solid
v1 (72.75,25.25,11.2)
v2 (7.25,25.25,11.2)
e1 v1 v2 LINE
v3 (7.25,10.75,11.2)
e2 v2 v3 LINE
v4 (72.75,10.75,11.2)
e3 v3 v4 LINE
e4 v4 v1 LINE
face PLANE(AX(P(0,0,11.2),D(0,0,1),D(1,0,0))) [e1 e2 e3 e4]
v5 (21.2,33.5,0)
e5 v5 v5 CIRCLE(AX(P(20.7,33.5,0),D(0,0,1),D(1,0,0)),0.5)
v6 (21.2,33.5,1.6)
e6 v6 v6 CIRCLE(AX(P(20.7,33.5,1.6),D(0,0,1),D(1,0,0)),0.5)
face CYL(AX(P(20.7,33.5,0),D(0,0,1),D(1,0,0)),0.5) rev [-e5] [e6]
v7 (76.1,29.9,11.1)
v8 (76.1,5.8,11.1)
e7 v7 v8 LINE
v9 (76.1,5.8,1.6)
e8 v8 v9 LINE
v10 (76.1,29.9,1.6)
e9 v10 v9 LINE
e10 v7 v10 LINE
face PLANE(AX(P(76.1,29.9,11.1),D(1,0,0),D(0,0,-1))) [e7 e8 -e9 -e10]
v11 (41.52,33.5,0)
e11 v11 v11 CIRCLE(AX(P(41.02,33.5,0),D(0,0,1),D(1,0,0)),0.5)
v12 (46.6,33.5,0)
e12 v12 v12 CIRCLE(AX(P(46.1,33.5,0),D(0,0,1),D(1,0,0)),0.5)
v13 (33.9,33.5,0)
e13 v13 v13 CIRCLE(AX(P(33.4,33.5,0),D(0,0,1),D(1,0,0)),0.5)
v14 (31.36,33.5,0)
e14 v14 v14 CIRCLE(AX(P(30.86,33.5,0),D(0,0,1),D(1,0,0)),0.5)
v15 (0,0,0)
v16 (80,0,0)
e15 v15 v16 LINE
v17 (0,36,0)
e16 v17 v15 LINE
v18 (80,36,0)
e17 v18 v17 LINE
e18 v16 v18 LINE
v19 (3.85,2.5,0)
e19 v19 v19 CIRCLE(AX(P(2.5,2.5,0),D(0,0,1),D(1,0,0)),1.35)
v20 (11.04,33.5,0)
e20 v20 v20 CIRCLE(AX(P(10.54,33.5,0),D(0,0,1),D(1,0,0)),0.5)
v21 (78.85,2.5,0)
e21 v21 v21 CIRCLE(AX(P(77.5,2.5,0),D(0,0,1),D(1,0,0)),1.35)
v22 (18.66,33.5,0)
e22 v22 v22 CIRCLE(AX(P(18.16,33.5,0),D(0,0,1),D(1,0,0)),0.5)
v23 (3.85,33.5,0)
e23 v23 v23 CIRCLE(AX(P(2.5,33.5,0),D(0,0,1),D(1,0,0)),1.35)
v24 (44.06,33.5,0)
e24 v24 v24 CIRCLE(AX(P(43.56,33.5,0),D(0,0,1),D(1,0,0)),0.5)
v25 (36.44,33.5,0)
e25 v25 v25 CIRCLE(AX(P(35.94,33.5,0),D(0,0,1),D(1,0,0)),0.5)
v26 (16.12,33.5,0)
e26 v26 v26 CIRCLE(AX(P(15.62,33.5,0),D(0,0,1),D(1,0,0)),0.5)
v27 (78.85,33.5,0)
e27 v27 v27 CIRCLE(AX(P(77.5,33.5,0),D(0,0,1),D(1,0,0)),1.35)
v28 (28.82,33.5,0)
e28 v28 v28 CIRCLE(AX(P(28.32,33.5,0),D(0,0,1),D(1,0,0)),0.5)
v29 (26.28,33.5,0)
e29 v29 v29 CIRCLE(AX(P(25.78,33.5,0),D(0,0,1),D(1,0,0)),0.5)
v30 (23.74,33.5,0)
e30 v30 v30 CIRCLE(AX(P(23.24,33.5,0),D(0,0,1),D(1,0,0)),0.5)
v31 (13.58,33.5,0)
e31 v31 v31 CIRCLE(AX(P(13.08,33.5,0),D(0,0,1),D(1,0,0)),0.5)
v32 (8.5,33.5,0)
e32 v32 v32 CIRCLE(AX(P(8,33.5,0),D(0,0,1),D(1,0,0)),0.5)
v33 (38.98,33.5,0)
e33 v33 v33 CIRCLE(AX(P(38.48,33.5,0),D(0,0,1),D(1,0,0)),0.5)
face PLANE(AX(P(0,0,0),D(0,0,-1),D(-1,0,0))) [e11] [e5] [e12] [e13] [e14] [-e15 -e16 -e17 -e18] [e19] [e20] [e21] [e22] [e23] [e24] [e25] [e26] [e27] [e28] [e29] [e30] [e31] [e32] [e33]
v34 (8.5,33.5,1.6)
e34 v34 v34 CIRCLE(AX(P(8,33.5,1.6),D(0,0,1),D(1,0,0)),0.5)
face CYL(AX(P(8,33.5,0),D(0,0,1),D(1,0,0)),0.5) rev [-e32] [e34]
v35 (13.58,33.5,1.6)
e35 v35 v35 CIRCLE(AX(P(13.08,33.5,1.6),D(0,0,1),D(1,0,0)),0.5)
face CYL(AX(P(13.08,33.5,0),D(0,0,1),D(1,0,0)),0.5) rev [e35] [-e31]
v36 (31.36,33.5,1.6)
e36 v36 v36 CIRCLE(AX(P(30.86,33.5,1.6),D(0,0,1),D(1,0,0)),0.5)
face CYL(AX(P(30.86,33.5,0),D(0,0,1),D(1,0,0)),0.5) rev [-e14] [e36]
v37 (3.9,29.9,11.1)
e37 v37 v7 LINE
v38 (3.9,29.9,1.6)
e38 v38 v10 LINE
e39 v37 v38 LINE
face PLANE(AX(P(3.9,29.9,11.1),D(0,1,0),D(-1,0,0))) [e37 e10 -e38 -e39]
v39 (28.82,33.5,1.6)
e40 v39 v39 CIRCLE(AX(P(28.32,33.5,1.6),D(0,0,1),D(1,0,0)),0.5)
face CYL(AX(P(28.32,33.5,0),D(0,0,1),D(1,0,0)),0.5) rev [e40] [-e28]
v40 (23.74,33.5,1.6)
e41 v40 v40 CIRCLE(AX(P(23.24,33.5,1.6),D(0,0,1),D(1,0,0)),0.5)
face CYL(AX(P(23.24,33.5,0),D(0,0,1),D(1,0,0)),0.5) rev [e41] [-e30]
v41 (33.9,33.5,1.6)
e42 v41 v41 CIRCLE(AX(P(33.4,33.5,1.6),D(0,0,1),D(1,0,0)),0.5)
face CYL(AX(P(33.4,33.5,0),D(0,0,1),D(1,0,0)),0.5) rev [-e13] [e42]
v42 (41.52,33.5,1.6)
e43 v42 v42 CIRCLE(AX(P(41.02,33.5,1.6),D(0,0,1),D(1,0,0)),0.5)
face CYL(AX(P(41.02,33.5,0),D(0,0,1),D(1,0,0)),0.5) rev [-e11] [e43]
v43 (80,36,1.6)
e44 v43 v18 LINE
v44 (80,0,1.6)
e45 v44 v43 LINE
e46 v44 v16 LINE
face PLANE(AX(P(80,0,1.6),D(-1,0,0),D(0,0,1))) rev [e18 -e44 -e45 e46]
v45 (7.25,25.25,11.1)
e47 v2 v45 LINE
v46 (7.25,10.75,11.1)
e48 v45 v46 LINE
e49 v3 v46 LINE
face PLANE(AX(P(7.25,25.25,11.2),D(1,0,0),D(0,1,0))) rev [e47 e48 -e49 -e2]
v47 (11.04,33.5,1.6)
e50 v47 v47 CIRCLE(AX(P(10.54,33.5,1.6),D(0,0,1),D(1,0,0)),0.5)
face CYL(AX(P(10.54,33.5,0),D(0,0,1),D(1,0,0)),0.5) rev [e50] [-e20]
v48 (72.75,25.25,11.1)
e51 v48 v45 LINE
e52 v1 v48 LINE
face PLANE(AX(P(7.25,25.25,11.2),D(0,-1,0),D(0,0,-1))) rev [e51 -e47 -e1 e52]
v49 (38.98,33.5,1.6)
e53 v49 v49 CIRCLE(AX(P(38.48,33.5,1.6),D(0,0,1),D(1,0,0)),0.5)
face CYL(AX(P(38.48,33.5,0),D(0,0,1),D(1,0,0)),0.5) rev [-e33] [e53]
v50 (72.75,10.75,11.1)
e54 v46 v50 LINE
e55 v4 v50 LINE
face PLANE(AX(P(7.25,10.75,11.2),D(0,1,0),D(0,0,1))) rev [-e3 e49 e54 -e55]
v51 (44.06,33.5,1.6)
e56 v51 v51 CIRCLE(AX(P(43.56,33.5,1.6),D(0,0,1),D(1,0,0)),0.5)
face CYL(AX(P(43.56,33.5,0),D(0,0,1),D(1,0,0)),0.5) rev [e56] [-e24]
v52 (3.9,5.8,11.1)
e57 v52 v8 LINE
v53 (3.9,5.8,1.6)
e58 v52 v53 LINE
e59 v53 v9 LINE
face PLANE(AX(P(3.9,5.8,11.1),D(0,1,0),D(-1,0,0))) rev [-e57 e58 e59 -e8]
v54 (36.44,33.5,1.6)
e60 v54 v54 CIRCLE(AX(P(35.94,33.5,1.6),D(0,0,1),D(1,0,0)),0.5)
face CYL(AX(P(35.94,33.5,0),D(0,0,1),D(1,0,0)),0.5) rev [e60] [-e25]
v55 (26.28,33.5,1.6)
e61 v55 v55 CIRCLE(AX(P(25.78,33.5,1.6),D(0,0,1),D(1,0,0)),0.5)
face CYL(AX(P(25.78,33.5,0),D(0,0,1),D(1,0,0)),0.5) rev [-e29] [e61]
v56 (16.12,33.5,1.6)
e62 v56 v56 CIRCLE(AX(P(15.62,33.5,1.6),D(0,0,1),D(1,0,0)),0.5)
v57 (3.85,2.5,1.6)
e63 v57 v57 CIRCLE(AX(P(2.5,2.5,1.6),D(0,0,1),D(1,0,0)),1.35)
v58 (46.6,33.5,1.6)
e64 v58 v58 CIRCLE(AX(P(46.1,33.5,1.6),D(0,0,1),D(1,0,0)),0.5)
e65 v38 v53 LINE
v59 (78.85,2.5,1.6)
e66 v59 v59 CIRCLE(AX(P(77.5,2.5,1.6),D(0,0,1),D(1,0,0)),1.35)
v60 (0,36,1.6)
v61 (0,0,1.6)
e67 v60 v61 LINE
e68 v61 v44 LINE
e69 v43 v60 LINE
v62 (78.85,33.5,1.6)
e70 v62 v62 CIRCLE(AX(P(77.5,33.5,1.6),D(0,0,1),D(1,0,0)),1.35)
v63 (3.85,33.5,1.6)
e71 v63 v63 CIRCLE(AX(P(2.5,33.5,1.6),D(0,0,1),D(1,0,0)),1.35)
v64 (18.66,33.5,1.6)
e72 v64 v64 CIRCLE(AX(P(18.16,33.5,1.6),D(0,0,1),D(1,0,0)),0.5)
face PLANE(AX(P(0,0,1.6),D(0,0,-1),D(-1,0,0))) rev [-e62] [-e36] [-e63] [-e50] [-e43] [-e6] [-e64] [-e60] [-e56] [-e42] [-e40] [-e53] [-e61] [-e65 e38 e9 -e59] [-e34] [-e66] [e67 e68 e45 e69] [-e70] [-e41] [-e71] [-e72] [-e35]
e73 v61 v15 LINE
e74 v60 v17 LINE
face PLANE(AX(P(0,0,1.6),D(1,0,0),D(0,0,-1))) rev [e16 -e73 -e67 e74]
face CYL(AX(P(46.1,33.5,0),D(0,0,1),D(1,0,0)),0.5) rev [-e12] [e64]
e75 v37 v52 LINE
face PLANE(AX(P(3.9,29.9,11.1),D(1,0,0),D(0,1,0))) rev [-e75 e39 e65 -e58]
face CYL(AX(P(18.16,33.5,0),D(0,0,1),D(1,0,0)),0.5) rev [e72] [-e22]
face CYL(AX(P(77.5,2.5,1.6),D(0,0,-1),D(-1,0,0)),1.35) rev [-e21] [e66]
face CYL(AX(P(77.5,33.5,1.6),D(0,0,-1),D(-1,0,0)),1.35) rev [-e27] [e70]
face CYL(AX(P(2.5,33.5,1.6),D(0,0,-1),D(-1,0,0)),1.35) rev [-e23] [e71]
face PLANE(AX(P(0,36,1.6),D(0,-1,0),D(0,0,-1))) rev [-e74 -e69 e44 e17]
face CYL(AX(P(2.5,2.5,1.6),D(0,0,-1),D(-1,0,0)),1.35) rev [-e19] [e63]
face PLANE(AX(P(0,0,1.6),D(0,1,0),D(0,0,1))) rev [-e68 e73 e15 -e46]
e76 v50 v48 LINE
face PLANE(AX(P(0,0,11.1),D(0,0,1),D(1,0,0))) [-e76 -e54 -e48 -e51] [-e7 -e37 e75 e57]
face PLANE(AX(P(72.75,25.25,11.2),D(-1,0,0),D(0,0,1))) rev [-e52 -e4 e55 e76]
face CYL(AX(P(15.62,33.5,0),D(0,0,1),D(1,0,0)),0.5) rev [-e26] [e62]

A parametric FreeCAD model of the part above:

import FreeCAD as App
import Part
import Sketcher

V = App.Vector


def add_polygon(sketch, points):
    """Adds a closed chain of lines whose ends are joined by coincident constraints."""
    first, n = sketch.GeometryCount, len(points)
    for a, b in zip(points, points[1:] + points[:1]):
        sketch.addGeometry(Part.LineSegment(App.Vector(*a, 0), App.Vector(*b, 0)), False)
    for i in range(n):
        sketch.addConstraint(Sketcher.Constraint("Coincident", first + i, 2, first + (i + 1) % n, 1))

doc = App.newDocument("Part")
body = doc.addObject("PartDesign::Body", "Body")

sketch1 = body.newObject("Sketcher::SketchObject", "Sketch")
sketch1.AttachmentSupport = (doc.getObject("XY_Plane"), [""])
sketch1.MapMode = "FlatFace"
add_polygon(sketch1, [(0, 36), (0, 0), (80, 0), (80, 36)])
sketch1.addGeometry(Part.Circle(V(2.5, 2.5, 0), V(0, 0, 1), 1.35), False)
sketch1.addGeometry(Part.Circle(V(77.5, 2.5, 0), V(0, 0, 1), 1.35), False)
sketch1.addGeometry(Part.Circle(V(2.5, 33.5, 0), V(0, 0, 1), 1.35), False)
sketch1.addGeometry(Part.Circle(V(77.5, 33.5, 0), V(0, 0, 1), 1.35), False)
sketch1.addConstraint([
    Sketcher.Constraint("Vertical", 0),
    Sketcher.Constraint("Horizontal", 1),
    Sketcher.Constraint("Vertical", 2),
    Sketcher.Constraint("Horizontal", 3),
    Sketcher.Constraint("Coincident", 0, 2, -1, 1),
    Sketcher.Constraint("Equal", 4, 5),
    Sketcher.Constraint("Equal", 5, 6),
    Sketcher.Constraint("Equal", 6, 7),
    Sketcher.Constraint("Horizontal", 4, 3, 5, 3),
    Sketcher.Constraint("Horizontal", 6, 3, 7, 3),
    Sketcher.Constraint("Vertical", 4, 3, 6, 3),
    Sketcher.Constraint("Vertical", 5, 3, 7, 3),
    Sketcher.Constraint("Diameter", 4, 2.7),
    Sketcher.Constraint("DistanceX", 1, 1, 1, 2, 80.0),
    Sketcher.Constraint("DistanceY", 0, 2, 0, 1, 36.0),
    Sketcher.Constraint("DistanceX", 4, 3, 5, 3, 75.0),
    Sketcher.Constraint("DistanceY", 4, 3, 6, 3, 31.0),
    Sketcher.Constraint("DistanceX", -1, 1, 4, 3, 2.5),
    Sketcher.Constraint("DistanceY", -1, 1, 4, 3, 2.5),
])
pad1 = body.newObject("PartDesign::Pad", "Pad")
pad1.Profile = sketch1
pad1.Length = 1.6

sketch2 = body.newObject("Sketcher::SketchObject", "Sketch001")
sketch2.AttachmentSupport = (doc.getObject("XY_Plane"), [""])
sketch2.MapMode = "FlatFace"
sketch2.AttachmentOffset = App.Placement(V(0, 0, 1.6), App.Rotation())
add_polygon(sketch2, [(7.25, 25.25), (7.25, 10.75), (72.75, 10.75), (72.75, 25.25)])
sketch2.addConstraint([
    Sketcher.Constraint("Vertical", 0),
    Sketcher.Constraint("Horizontal", 1),
    Sketcher.Constraint("Vertical", 2),
    Sketcher.Constraint("Horizontal", 3),
    Sketcher.Constraint("DistanceX", 1, 1, 1, 2, 65.5),
    Sketcher.Constraint("DistanceY", 0, 2, 0, 1, 14.5),
    Sketcher.Constraint("DistanceX", -1, 1, 0, 2, 7.25),
    Sketcher.Constraint("DistanceY", -1, 1, 0, 2, 10.75),
])
pad2 = body.newObject("PartDesign::Pad", "Pad001")
pad2.Profile = sketch2
pad2.Length = 9.6

sketch3 = body.newObject("Sketcher::SketchObject", "Sketch002")
sketch3.AttachmentSupport = (doc.getObject("XY_Plane"), [""])
sketch3.MapMode = "FlatFace"
sketch3.AttachmentOffset = App.Placement(V(0, 0, 1.6), App.Rotation())
add_polygon(sketch3, [(3.9, 29.9), (3.9, 5.8), (76.1, 5.8), (76.1, 29.9)])
sketch3.addConstraint([
    Sketcher.Constraint("Vertical", 0),
    Sketcher.Constraint("Horizontal", 1),
    Sketcher.Constraint("Vertical", 2),
    Sketcher.Constraint("Horizontal", 3),
    Sketcher.Constraint("DistanceX", 1, 1, 1, 2, 72.2),
    Sketcher.Constraint("DistanceY", 0, 2, 0, 1, 24.1),
    Sketcher.Constraint("DistanceX", -1, 1, 0, 2, 3.9),
    Sketcher.Constraint("DistanceY", -1, 1, 0, 2, 5.8),
])
pad3 = body.newObject("PartDesign::Pad", "Pad002")
pad3.Profile = sketch3
pad3.Length = 9.5

sketch4 = body.newObject("Sketcher::SketchObject", "Sketch003")
sketch4.AttachmentSupport = (doc.getObject("XY_Plane"), [""])
sketch4.MapMode = "FlatFace"
sketch4.AttachmentOffset = App.Placement(V(0, 0, 1.6), App.Rotation())
sketch4.addGeometry([
    Part.Circle(V(8, 33.5, 0), V(0, 0, 1), 0.5),
    Part.Circle(V(10.54, 33.5, 0), V(0, 0, 1), 0.5),
    Part.Circle(V(13.08, 33.5, 0), V(0, 0, 1), 0.5),
    Part.Circle(V(15.62, 33.5, 0), V(0, 0, 1), 0.5),
    Part.Circle(V(18.16, 33.5, 0), V(0, 0, 1), 0.5),
    Part.Circle(V(20.7, 33.5, 0), V(0, 0, 1), 0.5),
    Part.Circle(V(23.24, 33.5, 0), V(0, 0, 1), 0.5),
    Part.Circle(V(25.78, 33.5, 0), V(0, 0, 1), 0.5),
    Part.Circle(V(28.32, 33.5, 0), V(0, 0, 1), 0.5),
    Part.Circle(V(30.86, 33.5, 0), V(0, 0, 1), 0.5),
    Part.Circle(V(33.4, 33.5, 0), V(0, 0, 1), 0.5),
    Part.Circle(V(35.94, 33.5, 0), V(0, 0, 1), 0.5),
    Part.Circle(V(38.48, 33.5, 0), V(0, 0, 1), 0.5),
    Part.Circle(V(41.02, 33.5, 0), V(0, 0, 1), 0.5),
    Part.Circle(V(43.56, 33.5, 0), V(0, 0, 1), 0.5),
    Part.Circle(V(46.1, 33.5, 0), V(0, 0, 1), 0.5),
], False)
sketch4.addConstraint([
    Sketcher.Constraint("Equal", 0, 1),
    Sketcher.Constraint("Equal", 1, 2),
    Sketcher.Constraint("Equal", 2, 3),
    Sketcher.Constraint("Equal", 3, 4),
    Sketcher.Constraint("Equal", 4, 5),
    Sketcher.Constraint("Equal", 5, 6),
    Sketcher.Constraint("Equal", 6, 7),
    Sketcher.Constraint("Equal", 7, 8),
    Sketcher.Constraint("Equal", 8, 9),
    Sketcher.Constraint("Equal", 9, 10),
    Sketcher.Constraint("Equal", 10, 11),
    Sketcher.Constraint("Equal", 11, 12),
    Sketcher.Constraint("Equal", 12, 13),
    Sketcher.Constraint("Equal", 13, 14),
    Sketcher.Constraint("Equal", 14, 15),
    Sketcher.Constraint("Horizontal", 0, 3, 1, 3),
    Sketcher.Constraint("Horizontal", 1, 3, 2, 3),
    Sketcher.Constraint("Horizontal", 2, 3, 3, 3),
    Sketcher.Constraint("Horizontal", 3, 3, 4, 3),
    Sketcher.Constraint("Horizontal", 4, 3, 5, 3),
    Sketcher.Constraint("Horizontal", 5, 3, 6, 3),
    Sketcher.Constraint("Horizontal", 6, 3, 7, 3),
    Sketcher.Constraint("Horizontal", 7, 3, 8, 3),
    Sketcher.Constraint("Horizontal", 8, 3, 9, 3),
    Sketcher.Constraint("Horizontal", 9, 3, 10, 3),
    Sketcher.Constraint("Horizontal", 10, 3, 11, 3),
    Sketcher.Constraint("Horizontal", 11, 3, 12, 3),
    Sketcher.Constraint("Horizontal", 12, 3, 13, 3),
    Sketcher.Constraint("Horizontal", 13, 3, 14, 3),
    Sketcher.Constraint("Horizontal", 14, 3, 15, 3),
    Sketcher.Constraint("Diameter", 0, 1.0),
    Sketcher.Constraint("DistanceX", -1, 1, 0, 3, 8.0),
    Sketcher.Constraint("DistanceY", -1, 1, 0, 3, 33.5),
    Sketcher.Constraint("DistanceX", -1, 1, 5, 3, 20.7),
    Sketcher.Constraint("DistanceX", -1, 1, 10, 3, 33.4),
    Sketcher.Constraint("DistanceX", -1, 1, 15, 3, 46.1),
    Sketcher.Constraint("DistanceX", 1, 3, 6, 3, 12.7),
    Sketcher.Constraint("DistanceX", 2, 3, 7, 3, 12.7),
    Sketcher.Constraint("DistanceX", 3, 3, 8, 3, 12.7),
    Sketcher.Constraint("DistanceX", 4, 3, 9, 3, 12.7),
    Sketcher.Constraint("DistanceX", 6, 3, 11, 3, 12.7),
    Sketcher.Constraint("DistanceX", 7, 3, 12, 3, 12.7),
    Sketcher.Constraint("DistanceX", 8, 3, 13, 3, 12.7),
    Sketcher.Constraint("DistanceX", 9, 3, 14, 3, 12.7),
    Sketcher.Constraint("DistanceX", -1, 1, 1, 3, 10.54),
    Sketcher.Constraint("DistanceX", -1, 1, 2, 3, 13.08),
    Sketcher.Constraint("DistanceX", -1, 1, 3, 3, 15.62),
    Sketcher.Constraint("DistanceX", -1, 1, 4, 3, 18.16),
])
pocket1 = body.newObject("PartDesign::Pocket", "Pocket")
pocket1.Profile = sketch4
pocket1.Type = "ThroughAll"

doc.recompute()
